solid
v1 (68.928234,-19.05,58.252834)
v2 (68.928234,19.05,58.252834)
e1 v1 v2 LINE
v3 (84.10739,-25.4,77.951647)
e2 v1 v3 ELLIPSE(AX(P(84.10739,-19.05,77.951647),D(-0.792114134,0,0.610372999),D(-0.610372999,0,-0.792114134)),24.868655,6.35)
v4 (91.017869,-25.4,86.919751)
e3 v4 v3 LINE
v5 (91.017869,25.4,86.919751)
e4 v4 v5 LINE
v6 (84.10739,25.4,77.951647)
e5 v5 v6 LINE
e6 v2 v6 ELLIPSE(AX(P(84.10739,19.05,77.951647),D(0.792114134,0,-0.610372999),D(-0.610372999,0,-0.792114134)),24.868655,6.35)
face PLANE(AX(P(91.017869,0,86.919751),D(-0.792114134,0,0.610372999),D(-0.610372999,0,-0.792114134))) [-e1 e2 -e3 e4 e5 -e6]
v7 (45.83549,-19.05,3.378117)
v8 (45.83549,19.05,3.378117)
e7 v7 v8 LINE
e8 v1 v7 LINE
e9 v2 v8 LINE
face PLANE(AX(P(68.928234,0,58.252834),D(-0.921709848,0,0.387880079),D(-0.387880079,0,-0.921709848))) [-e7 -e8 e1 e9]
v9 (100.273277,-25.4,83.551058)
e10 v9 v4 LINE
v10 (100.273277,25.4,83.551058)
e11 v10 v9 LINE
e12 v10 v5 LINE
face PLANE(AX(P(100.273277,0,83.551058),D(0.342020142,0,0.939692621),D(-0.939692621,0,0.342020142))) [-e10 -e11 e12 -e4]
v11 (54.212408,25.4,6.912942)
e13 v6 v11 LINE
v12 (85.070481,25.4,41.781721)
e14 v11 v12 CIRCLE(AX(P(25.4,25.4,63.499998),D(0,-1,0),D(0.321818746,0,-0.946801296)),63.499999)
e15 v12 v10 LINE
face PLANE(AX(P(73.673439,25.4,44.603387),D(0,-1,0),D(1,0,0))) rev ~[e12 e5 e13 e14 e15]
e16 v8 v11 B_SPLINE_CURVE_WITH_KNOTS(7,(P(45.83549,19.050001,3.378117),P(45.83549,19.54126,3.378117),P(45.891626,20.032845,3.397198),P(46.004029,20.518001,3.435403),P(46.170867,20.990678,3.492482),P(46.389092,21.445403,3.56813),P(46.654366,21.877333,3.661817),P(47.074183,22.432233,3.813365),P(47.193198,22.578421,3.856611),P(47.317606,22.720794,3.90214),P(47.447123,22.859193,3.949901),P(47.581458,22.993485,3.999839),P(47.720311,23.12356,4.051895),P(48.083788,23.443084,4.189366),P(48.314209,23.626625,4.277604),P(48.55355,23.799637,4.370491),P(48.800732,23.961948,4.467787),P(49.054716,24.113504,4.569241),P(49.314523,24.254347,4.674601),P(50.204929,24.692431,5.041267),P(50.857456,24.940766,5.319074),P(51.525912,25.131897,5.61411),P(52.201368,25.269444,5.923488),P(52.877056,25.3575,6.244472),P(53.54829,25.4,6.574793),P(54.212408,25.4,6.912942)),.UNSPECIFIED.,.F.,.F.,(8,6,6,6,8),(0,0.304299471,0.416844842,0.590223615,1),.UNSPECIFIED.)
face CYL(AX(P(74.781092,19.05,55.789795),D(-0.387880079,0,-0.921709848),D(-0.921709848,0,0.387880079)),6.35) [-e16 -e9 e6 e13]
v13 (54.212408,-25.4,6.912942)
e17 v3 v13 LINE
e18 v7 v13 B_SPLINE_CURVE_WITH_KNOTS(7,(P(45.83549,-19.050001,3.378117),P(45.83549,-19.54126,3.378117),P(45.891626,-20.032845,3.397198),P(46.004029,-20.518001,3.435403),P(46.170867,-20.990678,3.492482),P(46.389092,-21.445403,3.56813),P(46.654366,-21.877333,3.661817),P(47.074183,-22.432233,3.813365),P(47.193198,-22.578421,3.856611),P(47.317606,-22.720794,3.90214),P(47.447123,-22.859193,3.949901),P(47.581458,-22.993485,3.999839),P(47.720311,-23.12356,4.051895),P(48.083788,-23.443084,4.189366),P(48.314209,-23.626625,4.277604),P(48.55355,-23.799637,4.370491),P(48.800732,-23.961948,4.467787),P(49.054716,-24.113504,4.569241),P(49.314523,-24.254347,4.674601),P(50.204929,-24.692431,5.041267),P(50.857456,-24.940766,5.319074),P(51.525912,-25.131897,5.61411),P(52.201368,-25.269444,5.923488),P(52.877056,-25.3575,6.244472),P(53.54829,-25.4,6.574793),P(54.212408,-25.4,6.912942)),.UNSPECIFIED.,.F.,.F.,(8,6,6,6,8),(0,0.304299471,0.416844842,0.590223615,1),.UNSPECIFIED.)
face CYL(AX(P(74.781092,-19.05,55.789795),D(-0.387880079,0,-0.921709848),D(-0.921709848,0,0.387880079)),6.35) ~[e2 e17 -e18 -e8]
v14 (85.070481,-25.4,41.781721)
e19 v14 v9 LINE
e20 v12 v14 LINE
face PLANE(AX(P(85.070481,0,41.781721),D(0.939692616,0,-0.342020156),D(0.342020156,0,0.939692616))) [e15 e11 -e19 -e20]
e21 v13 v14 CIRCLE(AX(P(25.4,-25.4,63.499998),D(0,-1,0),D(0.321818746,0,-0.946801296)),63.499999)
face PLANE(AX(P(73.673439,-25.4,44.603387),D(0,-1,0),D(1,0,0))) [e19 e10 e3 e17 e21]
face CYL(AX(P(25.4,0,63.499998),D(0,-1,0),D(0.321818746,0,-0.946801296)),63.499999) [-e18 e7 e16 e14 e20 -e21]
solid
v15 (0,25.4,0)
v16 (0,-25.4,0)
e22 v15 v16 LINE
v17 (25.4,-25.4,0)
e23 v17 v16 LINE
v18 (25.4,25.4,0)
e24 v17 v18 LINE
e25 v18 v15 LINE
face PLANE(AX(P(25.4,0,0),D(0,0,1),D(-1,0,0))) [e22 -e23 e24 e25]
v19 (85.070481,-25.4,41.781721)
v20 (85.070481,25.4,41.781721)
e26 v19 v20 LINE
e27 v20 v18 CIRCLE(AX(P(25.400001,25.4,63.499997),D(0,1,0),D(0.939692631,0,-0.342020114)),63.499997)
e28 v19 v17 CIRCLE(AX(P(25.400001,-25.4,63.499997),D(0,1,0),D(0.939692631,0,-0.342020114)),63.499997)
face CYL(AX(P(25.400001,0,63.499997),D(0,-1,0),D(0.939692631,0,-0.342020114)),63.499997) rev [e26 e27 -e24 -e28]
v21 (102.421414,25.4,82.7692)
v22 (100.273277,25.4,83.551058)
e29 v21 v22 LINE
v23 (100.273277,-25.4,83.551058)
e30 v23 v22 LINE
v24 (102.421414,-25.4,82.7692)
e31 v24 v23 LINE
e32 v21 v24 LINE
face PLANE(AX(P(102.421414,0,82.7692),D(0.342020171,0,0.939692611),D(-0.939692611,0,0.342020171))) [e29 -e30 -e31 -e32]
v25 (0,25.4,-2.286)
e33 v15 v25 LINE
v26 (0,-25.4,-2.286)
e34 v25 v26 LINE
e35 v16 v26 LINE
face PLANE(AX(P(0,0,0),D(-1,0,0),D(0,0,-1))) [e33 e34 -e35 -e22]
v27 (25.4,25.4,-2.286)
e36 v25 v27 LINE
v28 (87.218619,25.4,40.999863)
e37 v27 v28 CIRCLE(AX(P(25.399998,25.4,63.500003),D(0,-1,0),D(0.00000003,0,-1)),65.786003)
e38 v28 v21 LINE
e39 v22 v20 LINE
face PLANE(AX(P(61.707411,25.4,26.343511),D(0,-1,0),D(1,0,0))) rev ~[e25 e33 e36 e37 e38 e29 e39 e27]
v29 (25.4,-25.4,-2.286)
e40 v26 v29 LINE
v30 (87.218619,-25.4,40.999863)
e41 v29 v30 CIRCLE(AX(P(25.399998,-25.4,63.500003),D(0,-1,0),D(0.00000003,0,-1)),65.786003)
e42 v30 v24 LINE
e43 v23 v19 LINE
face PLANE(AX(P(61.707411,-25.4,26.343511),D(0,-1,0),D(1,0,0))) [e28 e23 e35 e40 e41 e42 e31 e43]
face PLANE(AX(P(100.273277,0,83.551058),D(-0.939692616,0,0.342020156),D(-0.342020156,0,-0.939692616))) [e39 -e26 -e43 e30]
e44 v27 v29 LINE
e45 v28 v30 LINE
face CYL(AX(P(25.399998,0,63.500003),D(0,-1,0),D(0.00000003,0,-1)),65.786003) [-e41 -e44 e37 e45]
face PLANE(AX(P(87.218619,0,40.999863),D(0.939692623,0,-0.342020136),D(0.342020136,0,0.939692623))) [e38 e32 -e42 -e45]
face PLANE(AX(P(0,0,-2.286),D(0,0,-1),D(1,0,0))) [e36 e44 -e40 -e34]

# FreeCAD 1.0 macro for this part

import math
import FreeCAD as App
import Part
import Sketcher
from FreeCAD import Vector
Q = App.Units.Quantity


def edges_at(feature, points):
    """Names of the edges that pass closest to the given points."""
    edges = feature.Shape.Edges
    near = lambda p: min(range(len(edges)), key=lambda i: edges[i].distToShape(Part.Vertex(*p))[0])
    return sorted({f"Edge{near(p) + 1}" for p in points})

doc = App.newDocument("Part")
body = doc.addObject("PartDesign::Body", "Body")

# Sketch on XZ plane
sketch1 = body.newObject("Sketcher::SketchObject", "Sketch")
sketch1.AttachmentSupport = (doc.getObject("XZ_Plane"), [""])
sketch1.MapMode = "FlatFace"
sketch1.addGeometry(Part.LineSegment(Vector(25.4, 0, 0), Vector(0, 0, 0)), False)
sketch1.addGeometry(Part.LineSegment(Vector(0, 0, 0), Vector(0, -2.286, 0)), False)
sketch1.addGeometry(Part.LineSegment(Vector(0, -2.286, 0), Vector(25.4, -2.286, 0)), False)
sketch1.addGeometry(Part.ArcOfCircle(Part.Circle(Vector(25.399998, 63.500003, 0), Vector(0, 0, 1), 65.786003), math.radians(-89.999998), math.radians(-20.000002)), False)
sketch1.addGeometry(Part.LineSegment(Vector(87.218619, 40.999863, 0), Vector(102.421414, 82.7692, 0)), False)
sketch1.addGeometry(Part.LineSegment(Vector(102.421414, 82.7692, 0), Vector(100.273277, 83.551058, 0)), False)
sketch1.addGeometry(Part.LineSegment(Vector(100.273277, 83.551058, 0), Vector(85.070481, 41.781721, 0)), False)
sketch1.addGeometry(Part.ArcOfCircle(Part.Circle(Vector(25.400001, 63.499997, 0), Vector(0, 0, 1), 63.499997), math.radians(-90.000001), math.radians(-19.999998)), False)
sketch1.addConstraint(Sketcher.Constraint("Coincident", 0, 2, 1, 1))
sketch1.addConstraint(Sketcher.Constraint("Coincident", 1, 2, 2, 1))
sketch1.addConstraint(Sketcher.Constraint("Tangent", 2, 2, 3, 1))
sketch1.addConstraint(Sketcher.Constraint("Tangent", 3, 2, 4, 1))
sketch1.addConstraint(Sketcher.Constraint("Coincident", 4, 2, 5, 1))
sketch1.addConstraint(Sketcher.Constraint("Coincident", 5, 2, 6, 1))
sketch1.addConstraint(Sketcher.Constraint("Tangent", 6, 2, 7, 2))
sketch1.addConstraint(Sketcher.Constraint("Tangent", 7, 1, 0, 1))
sketch1.addConstraint(Sketcher.Constraint("Horizontal", 0))
sketch1.addConstraint(Sketcher.Constraint("Vertical", 1))
sketch1.addConstraint(Sketcher.Constraint("Horizontal", 2))
sketch1.addConstraint(Sketcher.Constraint("Coincident", 0, 2, -1, 1))
sketch1.addConstraint(Sketcher.Constraint("Coincident", 7, 3, 3, 3))
sketch1.addConstraint(Sketcher.Constraint("Perpendicular", 4, 5))
sketch1.addConstraint(Sketcher.Constraint("Perpendicular", 5, 6))
sketch1.addConstraint(Sketcher.Constraint("Radius", 7, Q("2.4999999 in")))
sketch1.addConstraint(Sketcher.Constraint("DistanceX", 0, 2, 0, 1, Q("1 in")))
sketch1.addConstraint(Sketcher.Constraint("Radius", 3, Q("2.5900001 in")))
sketch1.addConstraint(Sketcher.Constraint("Angle", 4, Q("70 deg")))
sketch1.addConstraint(Sketcher.Constraint("Distance", 4, Q("1.75 in")))
pad1 = body.newObject("PartDesign::Pad", "Pad")
pad1.Profile = sketch1
pad1.Length = Q("2 in")
pad1.Midplane = True
body2 = doc.addObject("PartDesign::Body", "Body001")

# Sketch on XZ plane
sketch2 = body2.newObject("Sketcher::SketchObject", "Sketch001")
sketch2.AttachmentSupport = (doc.getObject("XZ_Plane001"), [""])
sketch2.MapMode = "FlatFace"
sketch2.addGeometry(Part.ArcOfCircle(Part.Circle(Vector(25.4, 63.499998, 0), Vector(0, 0, 1), 63.499999), math.radians(-71.227049), math.radians(-19.999999)), False)
sketch2.addGeometry(Part.LineSegment(Vector(85.070481, 41.781721, 0), Vector(100.273277, 83.551058, 0)), False)
sketch2.addGeometry(Part.LineSegment(Vector(100.273277, 83.551058, 0), Vector(91.017869, 86.919751, 0)), False)
sketch2.addGeometry(Part.LineSegment(Vector(91.017869, 86.919751, 0), Vector(68.928234, 58.252834, 0)), False)
sketch2.addGeometry(Part.LineSegment(Vector(68.928234, 58.252834, 0), Vector(45.83549, 3.378117, 0)), False)
sketch2.addConstraint(Sketcher.Constraint("Tangent", 0, 2, 1, 1))
sketch2.addConstraint(Sketcher.Constraint("Coincident", 1, 2, 2, 1))
sketch2.addConstraint(Sketcher.Constraint("Coincident", 2, 2, 3, 1))
sketch2.addConstraint(Sketcher.Constraint("Coincident", 3, 2, 4, 1))
sketch2.addConstraint(Sketcher.Constraint("Coincident", 4, 2, 0, 1))
sketch2.addConstraint(Sketcher.Constraint("Perpendicular", 1, 2))
sketch2.addConstraint(Sketcher.Constraint("Radius", 0, Q("2.5 in")))
sketch2.addConstraint(Sketcher.Constraint("DistanceX", -1, 1, 0, 3, Q("1 in")))
sketch2.addConstraint(Sketcher.Constraint("Angle", 1, Q("69.999999 deg")))
sketch2.addConstraint(Sketcher.Constraint("DistanceY", -1, 1, 0, 3, Q("2.4999999 in")))
sketch2.addConstraint(Sketcher.Constraint("Distance", 1, Q("1.75 in")))
sketch2.addConstraint(Sketcher.Constraint("Distance", 2, 9.849399))
sketch2.addConstraint(Sketcher.Constraint("DistanceX", -1, 1, 4, 2, 45.83549))
sketch2.addConstraint(Sketcher.Constraint("Distance", 3, 36.190387))
sketch2.addConstraint(Sketcher.Constraint("Distance", 4, 59.535782))
pad2 = body2.newObject("PartDesign::Pad", "Pad001")
pad2.Profile = sketch2
pad2.Type = "TwoLengths"
pad2.Length = Q("1 in")
pad2.Length2 = Q("1 in")
doc.recompute()

fillet = body2.newObject("PartDesign::Fillet", "Fillet")
fillet.Base = (pad2, edges_at(pad2, [(57.382, -25.4, 30.815), (57.382, 25.4, 30.815)]))
fillet.Radius = Q("0.25 in")

doc.recompute()
